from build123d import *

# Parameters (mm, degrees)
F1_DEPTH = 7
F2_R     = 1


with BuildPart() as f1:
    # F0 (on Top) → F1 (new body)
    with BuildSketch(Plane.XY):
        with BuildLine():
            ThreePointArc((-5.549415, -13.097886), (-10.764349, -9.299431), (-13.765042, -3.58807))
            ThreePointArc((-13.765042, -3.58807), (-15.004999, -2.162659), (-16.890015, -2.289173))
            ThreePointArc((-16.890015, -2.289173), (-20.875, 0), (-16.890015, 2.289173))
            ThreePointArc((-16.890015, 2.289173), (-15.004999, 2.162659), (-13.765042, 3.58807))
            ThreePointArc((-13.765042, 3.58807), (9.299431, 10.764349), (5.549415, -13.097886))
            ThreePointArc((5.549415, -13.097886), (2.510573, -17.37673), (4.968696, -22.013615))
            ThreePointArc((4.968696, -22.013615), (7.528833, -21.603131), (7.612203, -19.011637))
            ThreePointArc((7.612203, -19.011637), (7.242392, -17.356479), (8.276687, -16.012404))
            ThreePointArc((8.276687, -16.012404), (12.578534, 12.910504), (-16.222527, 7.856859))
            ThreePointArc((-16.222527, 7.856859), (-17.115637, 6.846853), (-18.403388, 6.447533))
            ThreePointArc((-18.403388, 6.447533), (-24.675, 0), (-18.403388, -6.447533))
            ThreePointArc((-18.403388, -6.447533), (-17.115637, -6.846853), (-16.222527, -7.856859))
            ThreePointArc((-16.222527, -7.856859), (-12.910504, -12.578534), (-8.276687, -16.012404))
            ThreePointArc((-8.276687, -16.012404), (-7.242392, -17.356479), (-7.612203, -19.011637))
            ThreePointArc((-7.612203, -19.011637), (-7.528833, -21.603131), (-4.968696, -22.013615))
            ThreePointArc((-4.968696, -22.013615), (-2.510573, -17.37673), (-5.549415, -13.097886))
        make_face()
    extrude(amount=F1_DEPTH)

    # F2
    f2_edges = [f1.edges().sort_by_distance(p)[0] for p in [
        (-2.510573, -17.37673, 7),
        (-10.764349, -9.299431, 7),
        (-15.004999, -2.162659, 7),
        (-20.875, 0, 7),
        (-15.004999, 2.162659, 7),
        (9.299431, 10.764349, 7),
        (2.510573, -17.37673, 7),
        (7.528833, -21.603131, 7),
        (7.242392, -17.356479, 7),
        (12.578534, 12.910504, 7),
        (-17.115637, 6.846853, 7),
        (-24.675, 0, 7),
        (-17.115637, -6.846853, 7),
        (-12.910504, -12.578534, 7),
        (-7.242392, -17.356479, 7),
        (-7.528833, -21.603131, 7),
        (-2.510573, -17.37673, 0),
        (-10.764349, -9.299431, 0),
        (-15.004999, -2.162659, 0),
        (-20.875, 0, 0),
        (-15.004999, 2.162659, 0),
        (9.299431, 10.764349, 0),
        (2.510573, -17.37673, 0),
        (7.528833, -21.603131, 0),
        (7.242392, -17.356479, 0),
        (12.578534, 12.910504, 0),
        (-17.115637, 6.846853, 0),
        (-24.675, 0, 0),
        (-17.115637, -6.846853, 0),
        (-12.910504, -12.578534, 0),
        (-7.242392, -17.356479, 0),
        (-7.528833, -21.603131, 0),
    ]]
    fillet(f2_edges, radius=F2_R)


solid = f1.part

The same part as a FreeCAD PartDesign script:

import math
import FreeCAD as App
import Part
import Sketcher


def edges_at(feature, points):
    """Names of the edges that pass closest to the given points."""
    edges = feature.Shape.Edges
    near = lambda p: min(range(len(edges)), key=lambda i: edges[i].distToShape(Part.Vertex(*p))[0])
    return sorted({f"Edge{near(p) + 1}" for p in points})

doc = App.newDocument("Part")
body = doc.addObject("PartDesign::Body", "Body")

sketch1 = doc.addObject("Sketcher::SketchObject", "Sketch")
body.addObject(sketch1)
sketch1.AttachmentSupport = (doc.XY_Plane, [""])
sketch1.MapMode = "FlatFace"
sketch1.addGeometry(Part.ArcOfCircle(Part.Circle(App.Vector(0, 0, 0), App.Vector(0, 0, 1), 14.2), math.radians(-165), math.radians(-113)), False)
sketch1.addGeometry(Part.ArcOfCircle(Part.Circle(App.Vector(-15.8, -4.1, 0), App.Vector(0, 0, 1), 2.1), math.radians(15), math.radians(120)), False)
sketch1.addGeometry(Part.ArcOfCircle(Part.Circle(App.Vector(-18.2, 0, 0), App.Vector(0, 0, 1), 2.6), math.radians(60), math.radians(300)), False)
sketch1.addGeometry(Part.ArcOfCircle(Part.Circle(App.Vector(-15.8, 4.1, 0), App.Vector(0, 0, 1), 2.1), math.radians(-120), math.radians(-15)), False)
sketch1.addGeometry(Part.ArcOfCircle(Part.Circle(App.Vector(0, 0, 0), App.Vector(0, 0, 1), 14.2), math.radians(-67), math.radians(165)), False)
sketch1.addGeometry(Part.ArcOfCircle(Part.Circle(App.Vector(7.5, -17.7, 0), App.Vector(0, 0, 1), 5), math.radians(113), math.radians(240)), False)
sketch1.addGeometry(Part.ArcOfCircle(Part.Circle(App.Vector(6, -20.3, 0), App.Vector(0, 0, 1), 2), math.radians(-120), math.radians(38)), False)
sketch1.addGeometry(Part.ArcOfCircle(Part.Circle(App.Vector(9.2, -17.8, 0), App.Vector(0, 0, 1), 2), math.radians(117), math.radians(218)), False)
sketch1.addGeometry(Part.ArcOfCircle(Part.Circle(App.Vector(0, 0, 0), App.Vector(0, 0, 1), 18), math.radians(-63), math.radians(154)), False)
sketch1.addGeometry(Part.ArcOfCircle(Part.Circle(App.Vector(-18.5, 8.9, 0), App.Vector(0, 0, 1), 2.5), math.radians(-88), math.radians(-26)), False)
sketch1.addGeometry(Part.ArcOfCircle(Part.Circle(App.Vector(-18.2, 0, 0), App.Vector(0, 0, 1), 6.5), math.radians(92), math.radians(268)), False)
sketch1.addGeometry(Part.ArcOfCircle(Part.Circle(App.Vector(-18.5, -8.9, 0), App.Vector(0, 0, 1), 2.5), math.radians(26), math.radians(88)), False)
sketch1.addGeometry(Part.ArcOfCircle(Part.Circle(App.Vector(0, 0, 0), App.Vector(0, 0, 1), 18), math.radians(-154), math.radians(-117)), False)
sketch1.addGeometry(Part.ArcOfCircle(Part.Circle(App.Vector(-9.2, -17.8, 0), App.Vector(0, 0, 1), 2), math.radians(-38), math.radians(63)), False)
sketch1.addGeometry(Part.ArcOfCircle(Part.Circle(App.Vector(-6, -20.3, 0), App.Vector(0, 0, 1), 2), math.radians(142), math.radians(300)), False)
sketch1.addGeometry(Part.ArcOfCircle(Part.Circle(App.Vector(-7.5, -17.7, 0), App.Vector(0, 0, 1), 5), math.radians(-60), math.radians(67)), False)
sketch1.addConstraint(Sketcher.Constraint("Tangent", 0, 1, 1, 1))
sketch1.addConstraint(Sketcher.Constraint("Tangent", 1, 2, 2, 2))
sketch1.addConstraint(Sketcher.Constraint("Tangent", 2, 1, 3, 1))
sketch1.addConstraint(Sketcher.Constraint("Tangent", 3, 2, 4, 2))
sketch1.addConstraint(Sketcher.Constraint("Tangent", 4, 1, 5, 1))
sketch1.addConstraint(Sketcher.Constraint("Tangent", 5, 2, 6, 1))
sketch1.addConstraint(Sketcher.Constraint("Tangent", 6, 2, 7, 2))
sketch1.addConstraint(Sketcher.Constraint("Tangent", 7, 1, 8, 1))
sketch1.addConstraint(Sketcher.Constraint("Tangent", 8, 2, 9, 2))
sketch1.addConstraint(Sketcher.Constraint("Tangent", 9, 1, 10, 1))
sketch1.addConstraint(Sketcher.Constraint("Tangent", 10, 2, 11, 2))
sketch1.addConstraint(Sketcher.Constraint("Tangent", 11, 1, 12, 1))
sketch1.addConstraint(Sketcher.Constraint("Tangent", 12, 2, 13, 2))
sketch1.addConstraint(Sketcher.Constraint("Tangent", 13, 1, 14, 1))
sketch1.addConstraint(Sketcher.Constraint("Tangent", 14, 2, 15, 1))
sketch1.addConstraint(Sketcher.Constraint("Tangent", 15, 2, 0, 2))
sketch1.addConstraint(Sketcher.Constraint("Coincident", 0, 3, -1, 1))
sketch1.addConstraint(Sketcher.Constraint("Coincident", 4, 3, -1, 1))
sketch1.addConstraint(Sketcher.Constraint("Coincident", 8, 3, -1, 1))
sketch1.addConstraint(Sketcher.Constraint("Coincident", 12, 3, -1, 1))
sketch1.addConstraint(Sketcher.Constraint("Coincident", 10, 3, 2, 3))
sketch1.addConstraint(Sketcher.Constraint("Equal", 1, 3))
sketch1.addConstraint(Sketcher.Constraint("Equal", 0, 4))
sketch1.addConstraint(Sketcher.Constraint("Equal", 9, 11))
sketch1.addConstraint(Sketcher.Constraint("Equal", 7, 13))
sketch1.addConstraint(Sketcher.Constraint("Equal", 6, 14))
sketch1.addConstraint(Sketcher.Constraint("Equal", 5, 15))
sketch1.addConstraint(Sketcher.Constraint("Symmetric", 7, 3, 13, 3, -2))
sketch1.addConstraint(Sketcher.Constraint("PointOnObject", 2, 3, -1))
sketch1.addConstraint(Sketcher.Constraint("Horizontal", 6, 3, 14, 3))
sketch1.addConstraint(Sketcher.Constraint("Radius", 5, 5.000001))
sketch1.addConstraint(Sketcher.Constraint("Radius", 7, 1.999999))
sketch1.addConstraint(Sketcher.Constraint("Radius", 9, 2.500001))
sketch1.addConstraint(Sketcher.Constraint("Radius", 2, 2.65))
sketch1.addConstraint(Sketcher.Constraint("Radius", 10, 6.45))
sketch1.addConstraint(Sketcher.Constraint("DistanceX", -1, 1, 6, 3, 6.0))
sketch1.addConstraint(Sketcher.Constraint("Radius", 0, 14.225))
sketch1.addConstraint(Sketcher.Constraint("Radius", 8, 18.025))
sketch1.addConstraint(Sketcher.Constraint("DistanceX", -1, 1, 5, 3, 7.500001))
sketch1.addConstraint(Sketcher.Constraint("Radius", 6, 2.0371))
sketch1.addConstraint(Sketcher.Constraint("Radius", 1, 2.123761))
sketch1.addConstraint(Sketcher.Constraint("DistanceX", 2, 3, -1, 1, 18.225))
pad1 = doc.addObject("PartDesign::Pad", "Pad")
body.addObject(pad1)
pad1.Profile = sketch1
pad1.Length = 7
doc.recompute()

fillet = doc.addObject("PartDesign::Fillet", "Fillet")
body.addObject(fillet)
fillet.Base = (pad1, edges_at(pad1, [
    (-2.511, -17.377, 7),
    (-10.764, -9.299, 7),
    (-15.005, -2.163, 7),
    (-20.875, 0, 7),
    (-15.005, 2.163, 7),
    (9.299, 10.764, 7),
    (2.511, -17.377, 7),
    (7.529, -21.603, 7),
    (7.242, -17.356, 7),
    (12.579, 12.911, 7),
    (-17.116, 6.847, 7),
    (-24.675, 0, 7),
    (-17.116, -6.847, 7),
    (-12.911, -12.579, 7),
    (-7.242, -17.356, 7),
    (-7.529, -21.603, 7),
    (-2.511, -17.377, 0),
    (-10.764, -9.299, 0),
    (-15.005, -2.163, 0),
    (-20.875, 0, 0),
    (-15.005, 2.163, 0),
    (9.299, 10.764, 0),
    (2.511, -17.377, 0),
    (7.529, -21.603, 0),
    (7.242, -17.356, 0),
    (12.579, 12.911, 0),
    (-17.116, 6.847, 0),
    (-24.675, 0, 0),
    (-17.116, -6.847, 0),
    (-12.911, -12.579, 0),
    (-7.242, -17.356, 0),
    (-7.529, -21.603, 0),
]))
fillet.Radius = 1

doc.recompute()
